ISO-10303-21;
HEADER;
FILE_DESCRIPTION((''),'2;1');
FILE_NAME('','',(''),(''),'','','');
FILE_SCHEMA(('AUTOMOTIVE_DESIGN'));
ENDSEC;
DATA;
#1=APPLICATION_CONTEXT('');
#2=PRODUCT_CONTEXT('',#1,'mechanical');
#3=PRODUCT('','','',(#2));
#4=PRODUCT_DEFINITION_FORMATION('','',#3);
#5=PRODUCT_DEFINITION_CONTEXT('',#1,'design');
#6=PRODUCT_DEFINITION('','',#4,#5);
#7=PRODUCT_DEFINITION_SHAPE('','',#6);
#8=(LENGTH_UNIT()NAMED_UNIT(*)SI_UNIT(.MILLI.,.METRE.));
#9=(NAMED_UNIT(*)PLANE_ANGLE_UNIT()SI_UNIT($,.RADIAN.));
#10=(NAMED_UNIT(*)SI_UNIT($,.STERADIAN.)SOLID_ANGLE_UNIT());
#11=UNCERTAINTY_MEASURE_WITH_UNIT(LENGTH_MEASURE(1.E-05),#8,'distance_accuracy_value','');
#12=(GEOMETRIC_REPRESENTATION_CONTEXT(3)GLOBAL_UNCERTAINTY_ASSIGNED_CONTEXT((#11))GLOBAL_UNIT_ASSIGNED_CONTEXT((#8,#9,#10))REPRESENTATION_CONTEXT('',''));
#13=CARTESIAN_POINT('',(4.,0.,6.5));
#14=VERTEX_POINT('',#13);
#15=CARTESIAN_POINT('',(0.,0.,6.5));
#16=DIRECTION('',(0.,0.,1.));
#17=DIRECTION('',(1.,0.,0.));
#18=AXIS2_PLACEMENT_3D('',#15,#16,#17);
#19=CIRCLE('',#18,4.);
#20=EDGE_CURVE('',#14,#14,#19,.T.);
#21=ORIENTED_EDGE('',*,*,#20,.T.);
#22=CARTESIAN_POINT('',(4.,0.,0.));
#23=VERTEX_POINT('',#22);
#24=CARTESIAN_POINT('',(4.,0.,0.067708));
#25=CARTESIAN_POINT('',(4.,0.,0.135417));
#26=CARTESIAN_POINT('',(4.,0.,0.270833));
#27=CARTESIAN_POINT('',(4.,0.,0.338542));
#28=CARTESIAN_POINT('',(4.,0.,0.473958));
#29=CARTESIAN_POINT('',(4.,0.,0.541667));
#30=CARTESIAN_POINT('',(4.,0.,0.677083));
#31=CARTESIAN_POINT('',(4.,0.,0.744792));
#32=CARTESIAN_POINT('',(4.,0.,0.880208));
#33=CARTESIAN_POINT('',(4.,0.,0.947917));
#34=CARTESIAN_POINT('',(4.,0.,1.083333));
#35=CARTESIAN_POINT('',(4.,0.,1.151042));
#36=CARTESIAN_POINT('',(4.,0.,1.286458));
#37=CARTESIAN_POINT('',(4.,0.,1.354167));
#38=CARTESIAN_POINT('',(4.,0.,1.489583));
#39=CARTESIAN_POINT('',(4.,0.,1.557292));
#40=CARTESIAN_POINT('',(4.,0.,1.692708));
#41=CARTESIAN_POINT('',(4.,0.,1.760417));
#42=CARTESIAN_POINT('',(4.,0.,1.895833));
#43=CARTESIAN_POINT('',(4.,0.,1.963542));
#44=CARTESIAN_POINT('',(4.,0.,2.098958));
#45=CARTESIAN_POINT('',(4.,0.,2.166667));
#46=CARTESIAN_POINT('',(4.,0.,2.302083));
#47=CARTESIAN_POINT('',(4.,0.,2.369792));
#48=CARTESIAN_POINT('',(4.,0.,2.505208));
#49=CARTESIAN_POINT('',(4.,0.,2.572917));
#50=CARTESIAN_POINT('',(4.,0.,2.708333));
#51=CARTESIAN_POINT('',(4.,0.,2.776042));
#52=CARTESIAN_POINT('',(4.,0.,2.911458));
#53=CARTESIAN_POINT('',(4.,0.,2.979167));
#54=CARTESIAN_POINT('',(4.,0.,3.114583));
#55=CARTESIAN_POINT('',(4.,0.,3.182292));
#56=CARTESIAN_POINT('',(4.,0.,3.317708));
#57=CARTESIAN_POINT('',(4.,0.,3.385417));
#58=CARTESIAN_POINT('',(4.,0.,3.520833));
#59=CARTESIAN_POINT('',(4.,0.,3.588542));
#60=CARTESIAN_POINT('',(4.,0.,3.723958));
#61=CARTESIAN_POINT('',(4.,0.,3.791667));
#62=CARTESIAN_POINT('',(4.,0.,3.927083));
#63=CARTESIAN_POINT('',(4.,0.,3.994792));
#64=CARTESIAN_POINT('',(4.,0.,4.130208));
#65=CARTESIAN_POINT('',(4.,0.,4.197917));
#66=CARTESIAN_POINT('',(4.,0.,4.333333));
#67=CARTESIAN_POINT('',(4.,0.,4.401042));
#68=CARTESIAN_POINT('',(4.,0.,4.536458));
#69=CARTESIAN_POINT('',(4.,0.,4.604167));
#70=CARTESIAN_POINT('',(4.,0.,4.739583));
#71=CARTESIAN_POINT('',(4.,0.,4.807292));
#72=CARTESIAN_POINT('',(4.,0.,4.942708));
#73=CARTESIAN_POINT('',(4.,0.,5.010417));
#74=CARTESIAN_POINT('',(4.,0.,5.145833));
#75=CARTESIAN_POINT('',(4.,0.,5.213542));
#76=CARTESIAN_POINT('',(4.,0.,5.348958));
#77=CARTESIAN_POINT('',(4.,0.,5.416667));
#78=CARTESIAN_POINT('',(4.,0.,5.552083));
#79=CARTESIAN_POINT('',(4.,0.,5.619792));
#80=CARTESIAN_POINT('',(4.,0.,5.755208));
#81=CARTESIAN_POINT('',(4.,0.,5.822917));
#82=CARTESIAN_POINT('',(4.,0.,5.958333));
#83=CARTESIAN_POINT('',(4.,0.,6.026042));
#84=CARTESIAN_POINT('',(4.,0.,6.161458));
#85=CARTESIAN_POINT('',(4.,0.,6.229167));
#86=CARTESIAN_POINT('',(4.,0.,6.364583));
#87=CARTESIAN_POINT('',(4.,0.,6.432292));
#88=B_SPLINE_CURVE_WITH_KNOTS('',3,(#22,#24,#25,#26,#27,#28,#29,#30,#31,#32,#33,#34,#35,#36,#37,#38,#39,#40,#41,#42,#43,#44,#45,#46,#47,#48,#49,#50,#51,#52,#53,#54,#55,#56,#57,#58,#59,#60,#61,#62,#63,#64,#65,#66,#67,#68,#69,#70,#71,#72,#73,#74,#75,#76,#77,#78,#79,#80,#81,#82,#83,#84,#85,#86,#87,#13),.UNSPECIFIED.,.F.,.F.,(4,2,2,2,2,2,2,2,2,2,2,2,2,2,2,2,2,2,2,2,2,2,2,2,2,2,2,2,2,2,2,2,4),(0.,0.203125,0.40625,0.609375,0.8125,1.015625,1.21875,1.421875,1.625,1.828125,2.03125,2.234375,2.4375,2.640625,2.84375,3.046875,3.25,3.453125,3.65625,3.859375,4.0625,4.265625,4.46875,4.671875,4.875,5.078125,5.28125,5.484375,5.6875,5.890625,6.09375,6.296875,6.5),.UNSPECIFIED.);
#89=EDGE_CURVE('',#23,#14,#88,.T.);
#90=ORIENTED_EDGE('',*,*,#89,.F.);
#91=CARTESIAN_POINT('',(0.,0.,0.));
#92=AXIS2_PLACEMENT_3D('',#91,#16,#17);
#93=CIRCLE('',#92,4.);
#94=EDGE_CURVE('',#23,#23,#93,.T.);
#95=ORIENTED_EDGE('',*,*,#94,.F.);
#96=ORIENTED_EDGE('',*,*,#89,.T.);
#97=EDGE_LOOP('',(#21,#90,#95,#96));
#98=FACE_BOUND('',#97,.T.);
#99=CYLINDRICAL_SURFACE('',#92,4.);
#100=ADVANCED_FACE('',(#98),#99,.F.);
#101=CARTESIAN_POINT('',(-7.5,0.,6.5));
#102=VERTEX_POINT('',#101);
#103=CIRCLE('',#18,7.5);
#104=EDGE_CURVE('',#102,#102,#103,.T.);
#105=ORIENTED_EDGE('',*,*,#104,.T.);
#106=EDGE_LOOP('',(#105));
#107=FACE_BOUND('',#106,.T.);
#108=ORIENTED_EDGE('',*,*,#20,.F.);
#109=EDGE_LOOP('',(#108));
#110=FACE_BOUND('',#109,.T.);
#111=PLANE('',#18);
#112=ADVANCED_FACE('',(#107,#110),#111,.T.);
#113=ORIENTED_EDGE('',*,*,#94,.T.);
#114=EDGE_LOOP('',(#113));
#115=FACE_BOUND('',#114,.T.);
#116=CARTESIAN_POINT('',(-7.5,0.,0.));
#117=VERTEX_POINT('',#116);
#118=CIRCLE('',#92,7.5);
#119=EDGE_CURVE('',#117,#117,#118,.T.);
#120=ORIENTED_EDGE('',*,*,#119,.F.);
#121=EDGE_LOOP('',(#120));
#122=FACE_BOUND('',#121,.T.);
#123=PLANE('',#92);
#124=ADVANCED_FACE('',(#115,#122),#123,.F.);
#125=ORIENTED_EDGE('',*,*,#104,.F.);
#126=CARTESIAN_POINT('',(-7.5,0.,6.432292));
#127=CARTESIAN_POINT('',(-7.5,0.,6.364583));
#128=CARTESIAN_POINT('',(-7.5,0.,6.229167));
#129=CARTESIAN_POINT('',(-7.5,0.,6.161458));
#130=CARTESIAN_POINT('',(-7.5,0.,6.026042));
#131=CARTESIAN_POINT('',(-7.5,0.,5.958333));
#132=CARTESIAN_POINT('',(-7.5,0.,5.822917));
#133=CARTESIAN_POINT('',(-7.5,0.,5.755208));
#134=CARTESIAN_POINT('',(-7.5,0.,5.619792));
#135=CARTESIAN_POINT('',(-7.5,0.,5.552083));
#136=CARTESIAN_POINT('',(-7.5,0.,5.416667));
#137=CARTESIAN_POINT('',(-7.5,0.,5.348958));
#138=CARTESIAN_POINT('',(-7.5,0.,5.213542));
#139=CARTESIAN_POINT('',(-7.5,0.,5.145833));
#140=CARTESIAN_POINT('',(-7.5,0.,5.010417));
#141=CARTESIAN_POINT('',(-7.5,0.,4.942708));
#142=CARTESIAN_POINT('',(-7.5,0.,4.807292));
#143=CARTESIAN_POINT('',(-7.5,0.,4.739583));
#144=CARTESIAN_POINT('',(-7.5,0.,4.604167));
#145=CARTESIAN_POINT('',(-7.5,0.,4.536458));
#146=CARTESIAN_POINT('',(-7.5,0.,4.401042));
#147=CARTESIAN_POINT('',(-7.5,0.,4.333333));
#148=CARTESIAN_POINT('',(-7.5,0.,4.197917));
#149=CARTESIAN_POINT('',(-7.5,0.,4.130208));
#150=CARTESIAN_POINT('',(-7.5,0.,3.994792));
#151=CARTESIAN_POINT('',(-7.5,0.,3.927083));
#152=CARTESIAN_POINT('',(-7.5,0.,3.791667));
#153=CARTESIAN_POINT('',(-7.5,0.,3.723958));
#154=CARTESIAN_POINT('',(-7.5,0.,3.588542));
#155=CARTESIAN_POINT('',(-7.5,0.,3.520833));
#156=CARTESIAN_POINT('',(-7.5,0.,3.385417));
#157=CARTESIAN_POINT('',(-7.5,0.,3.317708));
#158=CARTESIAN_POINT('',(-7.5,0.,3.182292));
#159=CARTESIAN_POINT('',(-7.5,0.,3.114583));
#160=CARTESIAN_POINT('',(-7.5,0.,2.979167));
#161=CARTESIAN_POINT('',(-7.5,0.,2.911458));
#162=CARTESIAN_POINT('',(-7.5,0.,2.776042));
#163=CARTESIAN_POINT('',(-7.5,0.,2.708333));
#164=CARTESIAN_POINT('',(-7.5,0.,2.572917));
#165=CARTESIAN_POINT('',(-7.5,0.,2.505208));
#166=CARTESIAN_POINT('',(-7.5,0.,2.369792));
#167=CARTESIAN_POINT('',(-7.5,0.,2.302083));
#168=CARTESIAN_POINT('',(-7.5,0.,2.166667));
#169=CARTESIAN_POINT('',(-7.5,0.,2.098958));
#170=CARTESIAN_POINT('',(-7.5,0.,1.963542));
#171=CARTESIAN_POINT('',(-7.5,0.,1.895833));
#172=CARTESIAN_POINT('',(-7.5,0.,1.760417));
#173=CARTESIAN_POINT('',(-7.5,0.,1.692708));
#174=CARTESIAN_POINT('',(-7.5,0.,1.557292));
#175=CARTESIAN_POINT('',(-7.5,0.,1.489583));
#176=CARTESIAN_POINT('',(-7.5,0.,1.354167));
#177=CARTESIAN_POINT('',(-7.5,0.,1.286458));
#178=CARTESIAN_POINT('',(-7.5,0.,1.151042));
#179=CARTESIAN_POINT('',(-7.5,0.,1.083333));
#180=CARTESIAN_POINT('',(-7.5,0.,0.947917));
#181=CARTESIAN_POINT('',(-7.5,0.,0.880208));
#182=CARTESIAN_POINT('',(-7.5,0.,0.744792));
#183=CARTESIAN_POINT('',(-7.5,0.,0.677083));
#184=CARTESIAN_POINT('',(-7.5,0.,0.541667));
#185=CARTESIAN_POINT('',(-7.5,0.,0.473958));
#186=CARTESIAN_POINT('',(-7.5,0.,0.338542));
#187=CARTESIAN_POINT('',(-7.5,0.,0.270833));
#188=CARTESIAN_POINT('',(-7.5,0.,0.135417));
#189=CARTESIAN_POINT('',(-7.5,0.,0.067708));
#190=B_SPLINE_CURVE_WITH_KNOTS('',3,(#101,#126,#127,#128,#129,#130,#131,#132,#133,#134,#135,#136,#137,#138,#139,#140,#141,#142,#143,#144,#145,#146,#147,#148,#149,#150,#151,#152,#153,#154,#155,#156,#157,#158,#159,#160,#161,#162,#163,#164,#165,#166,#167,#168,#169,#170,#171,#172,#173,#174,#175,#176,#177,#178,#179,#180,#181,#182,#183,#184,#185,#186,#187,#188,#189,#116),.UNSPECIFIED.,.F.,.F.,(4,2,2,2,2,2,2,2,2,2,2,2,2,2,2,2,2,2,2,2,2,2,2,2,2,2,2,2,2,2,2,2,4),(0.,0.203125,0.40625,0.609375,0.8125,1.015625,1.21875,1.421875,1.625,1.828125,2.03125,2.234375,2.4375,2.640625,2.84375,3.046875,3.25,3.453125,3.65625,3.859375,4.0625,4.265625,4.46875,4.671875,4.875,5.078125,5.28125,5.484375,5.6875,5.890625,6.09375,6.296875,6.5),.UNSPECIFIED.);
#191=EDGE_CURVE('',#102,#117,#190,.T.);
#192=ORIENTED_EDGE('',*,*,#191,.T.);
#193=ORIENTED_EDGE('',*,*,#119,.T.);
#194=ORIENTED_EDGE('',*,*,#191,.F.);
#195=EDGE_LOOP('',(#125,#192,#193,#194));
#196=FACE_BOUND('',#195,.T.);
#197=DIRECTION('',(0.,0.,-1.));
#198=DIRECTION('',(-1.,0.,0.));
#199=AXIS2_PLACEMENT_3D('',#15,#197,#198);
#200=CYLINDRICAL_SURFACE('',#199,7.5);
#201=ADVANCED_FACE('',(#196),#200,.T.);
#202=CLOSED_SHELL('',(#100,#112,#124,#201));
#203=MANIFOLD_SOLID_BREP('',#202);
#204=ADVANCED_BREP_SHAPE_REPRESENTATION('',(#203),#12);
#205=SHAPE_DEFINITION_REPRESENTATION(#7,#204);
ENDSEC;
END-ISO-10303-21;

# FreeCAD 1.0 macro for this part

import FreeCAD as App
import Part
import Sketcher
Q = App.Units.Quantity

doc = App.newDocument("Part")
body = doc.addObject("PartDesign::Body", "Body")

sketch1 = body.newObject("Sketcher::SketchObject", "Sketch")
sketch1.AttachmentSupport = (doc.getObject("XY_Plane"), [""])
sketch1.MapMode = "FlatFace"
sketch1.addGeometry(Part.Circle(App.Vector(0, 0, 0), App.Vector(0, 0, 1), 8), False)
sketch1.addConstraint([
    Sketcher.Constraint("Coincident", 0, 3, -1, 1),
    Sketcher.Constraint("Diameter", 0, Q("15 mm")),
])
pad1 = body.newObject("PartDesign::Pad", "Pad")
pad1.Profile = sketch1
pad1.Length = 6.5

sketch2 = body.newObject("Sketcher::SketchObject", "Sketch001")
sketch2.AttachmentSupport = (doc.getObject("XY_Plane"), [""])
sketch2.MapMode = "FlatFace"
sketch2.AttachmentOffset = App.Placement(App.Vector(0, 0, 6.5), App.Rotation())
sketch2.addGeometry(Part.Circle(App.Vector(0, 0, 0), App.Vector(0, 0, 1), 4), False)
sketch2.addConstraint([
    Sketcher.Constraint("Coincident", 0, 3, -1, 1),
    Sketcher.Constraint("Diameter", 0, Q("8 mm")),
])
pocket1 = body.newObject("PartDesign::Pocket", "Pocket")
pocket1.Profile = sketch2
pocket1.Length = 6.5

doc.recompute()
